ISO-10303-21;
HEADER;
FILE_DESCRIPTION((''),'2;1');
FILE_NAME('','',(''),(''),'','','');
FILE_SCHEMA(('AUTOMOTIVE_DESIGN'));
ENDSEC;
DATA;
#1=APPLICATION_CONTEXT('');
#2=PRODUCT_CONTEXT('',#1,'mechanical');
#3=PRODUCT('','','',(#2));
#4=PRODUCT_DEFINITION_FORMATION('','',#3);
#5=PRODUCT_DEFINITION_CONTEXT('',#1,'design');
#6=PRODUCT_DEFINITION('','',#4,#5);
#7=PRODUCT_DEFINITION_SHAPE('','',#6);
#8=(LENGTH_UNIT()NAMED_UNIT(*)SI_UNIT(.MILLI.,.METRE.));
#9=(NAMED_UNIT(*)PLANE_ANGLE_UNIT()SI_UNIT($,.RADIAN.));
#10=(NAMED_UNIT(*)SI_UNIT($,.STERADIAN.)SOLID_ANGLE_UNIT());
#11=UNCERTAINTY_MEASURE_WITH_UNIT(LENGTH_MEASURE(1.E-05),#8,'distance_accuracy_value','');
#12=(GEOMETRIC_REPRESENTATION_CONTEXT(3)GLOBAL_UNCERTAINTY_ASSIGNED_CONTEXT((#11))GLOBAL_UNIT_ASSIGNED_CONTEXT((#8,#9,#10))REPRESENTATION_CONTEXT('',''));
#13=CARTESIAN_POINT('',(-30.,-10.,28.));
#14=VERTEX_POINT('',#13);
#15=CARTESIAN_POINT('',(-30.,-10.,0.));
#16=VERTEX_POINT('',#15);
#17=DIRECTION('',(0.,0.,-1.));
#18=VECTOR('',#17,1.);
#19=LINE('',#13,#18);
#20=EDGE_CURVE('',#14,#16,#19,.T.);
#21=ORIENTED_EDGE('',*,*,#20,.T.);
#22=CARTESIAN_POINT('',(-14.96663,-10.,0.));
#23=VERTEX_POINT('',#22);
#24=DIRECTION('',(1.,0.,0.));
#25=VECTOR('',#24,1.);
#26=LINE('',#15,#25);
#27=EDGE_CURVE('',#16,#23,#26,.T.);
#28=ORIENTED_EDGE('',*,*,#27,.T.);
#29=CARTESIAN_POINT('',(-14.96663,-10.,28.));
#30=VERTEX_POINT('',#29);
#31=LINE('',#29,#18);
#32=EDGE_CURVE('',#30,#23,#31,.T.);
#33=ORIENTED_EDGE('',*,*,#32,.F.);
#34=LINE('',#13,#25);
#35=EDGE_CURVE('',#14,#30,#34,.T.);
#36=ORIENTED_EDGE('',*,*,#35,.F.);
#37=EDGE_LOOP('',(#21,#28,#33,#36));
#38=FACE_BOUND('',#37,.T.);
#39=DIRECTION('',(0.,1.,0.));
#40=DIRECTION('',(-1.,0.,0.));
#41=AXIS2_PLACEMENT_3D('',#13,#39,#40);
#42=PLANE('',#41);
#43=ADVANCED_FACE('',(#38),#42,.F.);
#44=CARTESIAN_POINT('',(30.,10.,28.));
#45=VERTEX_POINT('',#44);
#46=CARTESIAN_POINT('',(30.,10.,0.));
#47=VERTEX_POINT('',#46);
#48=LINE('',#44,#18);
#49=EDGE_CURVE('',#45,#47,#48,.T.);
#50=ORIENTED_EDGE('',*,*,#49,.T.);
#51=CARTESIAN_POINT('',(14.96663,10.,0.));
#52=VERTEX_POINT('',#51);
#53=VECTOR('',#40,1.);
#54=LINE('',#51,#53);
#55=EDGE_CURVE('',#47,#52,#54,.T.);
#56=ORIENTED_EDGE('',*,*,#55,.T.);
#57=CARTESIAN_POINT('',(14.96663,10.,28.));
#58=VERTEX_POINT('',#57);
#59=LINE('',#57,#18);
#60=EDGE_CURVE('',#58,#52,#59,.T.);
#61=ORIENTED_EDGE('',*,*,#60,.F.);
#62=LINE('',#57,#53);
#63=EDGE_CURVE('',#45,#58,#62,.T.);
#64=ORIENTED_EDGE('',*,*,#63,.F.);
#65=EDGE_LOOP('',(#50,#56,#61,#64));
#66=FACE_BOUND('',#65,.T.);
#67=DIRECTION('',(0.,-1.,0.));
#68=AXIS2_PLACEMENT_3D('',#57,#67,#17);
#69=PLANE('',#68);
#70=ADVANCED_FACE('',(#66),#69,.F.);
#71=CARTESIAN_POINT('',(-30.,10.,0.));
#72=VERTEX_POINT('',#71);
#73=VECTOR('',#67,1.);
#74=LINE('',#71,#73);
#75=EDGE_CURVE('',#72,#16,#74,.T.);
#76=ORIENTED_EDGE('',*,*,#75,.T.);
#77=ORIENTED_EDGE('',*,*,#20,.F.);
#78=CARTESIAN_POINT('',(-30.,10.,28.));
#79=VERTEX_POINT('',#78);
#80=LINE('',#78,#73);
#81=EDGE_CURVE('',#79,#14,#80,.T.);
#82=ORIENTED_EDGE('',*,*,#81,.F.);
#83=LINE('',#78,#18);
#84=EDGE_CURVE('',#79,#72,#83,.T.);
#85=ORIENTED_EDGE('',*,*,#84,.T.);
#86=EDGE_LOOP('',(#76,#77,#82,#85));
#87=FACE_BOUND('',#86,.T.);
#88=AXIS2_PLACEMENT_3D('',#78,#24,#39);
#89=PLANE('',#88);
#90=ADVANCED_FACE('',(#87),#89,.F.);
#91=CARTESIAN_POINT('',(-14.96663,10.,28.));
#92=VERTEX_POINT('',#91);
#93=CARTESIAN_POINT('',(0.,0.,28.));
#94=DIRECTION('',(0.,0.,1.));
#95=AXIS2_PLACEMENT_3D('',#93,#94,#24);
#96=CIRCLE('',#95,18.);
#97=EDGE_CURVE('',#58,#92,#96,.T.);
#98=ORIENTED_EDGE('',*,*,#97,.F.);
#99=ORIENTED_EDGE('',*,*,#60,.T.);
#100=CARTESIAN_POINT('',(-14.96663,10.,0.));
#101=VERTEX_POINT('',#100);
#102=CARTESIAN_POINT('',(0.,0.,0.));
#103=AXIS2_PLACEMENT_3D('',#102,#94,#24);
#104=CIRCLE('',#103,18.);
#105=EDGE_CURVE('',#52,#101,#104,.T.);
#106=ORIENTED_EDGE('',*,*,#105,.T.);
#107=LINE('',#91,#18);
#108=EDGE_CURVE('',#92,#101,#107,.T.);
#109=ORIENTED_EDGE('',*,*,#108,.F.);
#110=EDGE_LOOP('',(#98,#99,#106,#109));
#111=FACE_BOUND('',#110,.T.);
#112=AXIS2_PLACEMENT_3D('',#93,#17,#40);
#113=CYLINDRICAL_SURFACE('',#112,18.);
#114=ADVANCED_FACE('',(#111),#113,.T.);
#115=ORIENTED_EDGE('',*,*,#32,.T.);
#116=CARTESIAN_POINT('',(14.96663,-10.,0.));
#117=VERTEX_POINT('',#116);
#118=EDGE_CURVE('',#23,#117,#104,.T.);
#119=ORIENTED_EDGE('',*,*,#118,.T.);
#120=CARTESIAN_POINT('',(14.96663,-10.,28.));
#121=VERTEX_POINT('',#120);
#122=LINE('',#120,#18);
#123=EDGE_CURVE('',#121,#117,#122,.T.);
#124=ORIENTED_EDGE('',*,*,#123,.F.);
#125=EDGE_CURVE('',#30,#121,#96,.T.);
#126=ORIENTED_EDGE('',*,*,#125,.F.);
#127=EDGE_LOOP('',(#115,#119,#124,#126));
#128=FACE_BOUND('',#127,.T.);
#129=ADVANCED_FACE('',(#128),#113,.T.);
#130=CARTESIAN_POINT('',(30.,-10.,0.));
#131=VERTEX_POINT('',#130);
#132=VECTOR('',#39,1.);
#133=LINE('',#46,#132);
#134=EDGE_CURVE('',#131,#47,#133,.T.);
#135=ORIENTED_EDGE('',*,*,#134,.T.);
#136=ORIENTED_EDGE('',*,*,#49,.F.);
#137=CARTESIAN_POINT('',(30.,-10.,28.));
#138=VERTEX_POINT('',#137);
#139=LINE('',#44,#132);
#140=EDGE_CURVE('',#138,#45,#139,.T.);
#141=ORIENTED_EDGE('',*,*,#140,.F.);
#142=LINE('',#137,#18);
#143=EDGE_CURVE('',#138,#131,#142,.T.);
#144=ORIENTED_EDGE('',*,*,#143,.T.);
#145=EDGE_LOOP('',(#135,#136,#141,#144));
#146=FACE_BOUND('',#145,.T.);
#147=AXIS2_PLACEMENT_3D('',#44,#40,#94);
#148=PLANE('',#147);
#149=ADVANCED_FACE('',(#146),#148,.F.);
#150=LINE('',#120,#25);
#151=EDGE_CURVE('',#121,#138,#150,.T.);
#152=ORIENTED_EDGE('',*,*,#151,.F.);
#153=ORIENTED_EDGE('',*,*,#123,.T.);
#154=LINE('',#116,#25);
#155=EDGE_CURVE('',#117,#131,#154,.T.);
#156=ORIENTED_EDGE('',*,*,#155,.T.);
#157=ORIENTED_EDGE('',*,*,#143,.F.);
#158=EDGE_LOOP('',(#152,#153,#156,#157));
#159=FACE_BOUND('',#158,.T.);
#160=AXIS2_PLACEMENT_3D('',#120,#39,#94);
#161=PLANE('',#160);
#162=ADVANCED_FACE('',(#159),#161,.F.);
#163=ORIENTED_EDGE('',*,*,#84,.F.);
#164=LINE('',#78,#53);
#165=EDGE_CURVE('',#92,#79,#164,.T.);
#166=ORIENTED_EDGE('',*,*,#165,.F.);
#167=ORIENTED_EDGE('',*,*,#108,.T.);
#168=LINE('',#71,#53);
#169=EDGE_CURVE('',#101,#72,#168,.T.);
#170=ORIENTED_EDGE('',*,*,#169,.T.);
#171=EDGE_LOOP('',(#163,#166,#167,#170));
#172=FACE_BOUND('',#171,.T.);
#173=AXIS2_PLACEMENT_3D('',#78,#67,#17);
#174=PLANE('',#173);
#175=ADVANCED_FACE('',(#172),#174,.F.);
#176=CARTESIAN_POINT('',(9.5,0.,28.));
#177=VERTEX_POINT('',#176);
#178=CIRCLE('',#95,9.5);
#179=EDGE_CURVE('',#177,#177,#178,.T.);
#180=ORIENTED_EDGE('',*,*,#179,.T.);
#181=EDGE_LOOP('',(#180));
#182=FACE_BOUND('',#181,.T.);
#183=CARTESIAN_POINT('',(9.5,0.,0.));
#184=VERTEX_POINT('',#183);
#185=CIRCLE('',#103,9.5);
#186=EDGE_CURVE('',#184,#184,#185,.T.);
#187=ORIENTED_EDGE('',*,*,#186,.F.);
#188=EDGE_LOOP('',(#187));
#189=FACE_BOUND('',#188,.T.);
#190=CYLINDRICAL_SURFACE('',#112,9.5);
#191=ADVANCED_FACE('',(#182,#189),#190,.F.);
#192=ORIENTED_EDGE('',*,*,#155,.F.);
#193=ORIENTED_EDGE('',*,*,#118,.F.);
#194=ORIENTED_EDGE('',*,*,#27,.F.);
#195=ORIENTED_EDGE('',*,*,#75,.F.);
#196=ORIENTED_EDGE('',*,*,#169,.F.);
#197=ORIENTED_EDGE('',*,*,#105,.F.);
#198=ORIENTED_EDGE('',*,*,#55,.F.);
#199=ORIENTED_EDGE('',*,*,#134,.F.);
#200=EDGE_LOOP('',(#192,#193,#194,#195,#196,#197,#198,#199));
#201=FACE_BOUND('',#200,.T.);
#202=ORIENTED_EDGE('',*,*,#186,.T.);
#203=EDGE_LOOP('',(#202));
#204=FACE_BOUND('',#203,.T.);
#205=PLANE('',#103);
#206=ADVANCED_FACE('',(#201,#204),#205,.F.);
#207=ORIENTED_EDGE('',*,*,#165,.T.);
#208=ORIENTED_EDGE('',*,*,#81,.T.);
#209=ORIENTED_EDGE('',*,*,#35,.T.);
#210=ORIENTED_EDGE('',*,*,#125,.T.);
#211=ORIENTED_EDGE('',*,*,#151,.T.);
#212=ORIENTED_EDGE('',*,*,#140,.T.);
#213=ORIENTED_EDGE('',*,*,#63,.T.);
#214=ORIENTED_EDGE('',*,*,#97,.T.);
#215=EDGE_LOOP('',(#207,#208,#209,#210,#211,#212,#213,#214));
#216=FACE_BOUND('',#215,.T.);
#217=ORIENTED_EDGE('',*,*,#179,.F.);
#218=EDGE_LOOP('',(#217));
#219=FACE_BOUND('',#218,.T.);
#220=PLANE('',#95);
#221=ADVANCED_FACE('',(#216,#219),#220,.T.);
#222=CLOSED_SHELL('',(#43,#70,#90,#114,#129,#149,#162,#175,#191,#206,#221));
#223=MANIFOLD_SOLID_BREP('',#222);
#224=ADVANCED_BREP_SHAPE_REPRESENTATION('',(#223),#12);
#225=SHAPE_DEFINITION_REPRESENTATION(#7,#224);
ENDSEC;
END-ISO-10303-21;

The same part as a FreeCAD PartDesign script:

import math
import FreeCAD as App
import Part
import Sketcher

V = App.Vector
Q = App.Units.Quantity

doc = App.newDocument("Part")
body = doc.addObject("PartDesign::Body", "Body")

# Sketch on XY plane
sketch1 = body.newObject("Sketcher::SketchObject", "Sketch")
sketch1.AttachmentSupport = (doc.getObject("XY_Plane"), [""])
sketch1.MapMode = "FlatFace"
sketch1.addGeometry([
    Part.LineSegment(V(30, 10, 0), V(15, 10, 0)),  # 0
    Part.ArcOfCircle(Part.Circle(V(0, 0, 0), V(0, 0, 1), 18), math.radians(34), math.radians(146)),  # 1
    Part.LineSegment(V(-15, 10, 0), V(-30, 10, 0)),  # 2
    Part.LineSegment(V(-30, 10, 0), V(-30, -10, 0)),  # 3
    Part.LineSegment(V(-30, -10, 0), V(-15, -10, 0)),  # 4
    Part.ArcOfCircle(Part.Circle(V(0, 0, 0), V(0, 0, 1), 18), math.radians(-146), math.radians(-34)),  # 5
    Part.LineSegment(V(15, -10, 0), V(30, -10, 0)),  # 6
    Part.LineSegment(V(30, -10, 0), V(30, 10, 0)),  # 7
    Part.Circle(V(0, 0, 0), V(0, 0, 1), 10),  # 8
], False)
sketch1.addConstraint([
    Sketcher.Constraint("Coincident", 0, 2, 1, 1),
    Sketcher.Constraint("Coincident", 1, 2, 2, 1),
    Sketcher.Constraint("Coincident", 2, 2, 3, 1),
    Sketcher.Constraint("Coincident", 3, 2, 4, 1),
    Sketcher.Constraint("Coincident", 4, 2, 5, 1),
    Sketcher.Constraint("Coincident", 5, 2, 6, 1),
    Sketcher.Constraint("Coincident", 6, 2, 7, 1),
    Sketcher.Constraint("Coincident", 7, 2, 0, 1),
    Sketcher.Constraint("Horizontal", 0),
    Sketcher.Constraint("Horizontal", 2),
    Sketcher.Constraint("Vertical", 3),
    Sketcher.Constraint("Horizontal", 4),
    Sketcher.Constraint("Horizontal", 6),
    Sketcher.Constraint("Vertical", 7),
    Sketcher.Constraint("Coincident", 1, 3, -1, 1),
    Sketcher.Constraint("Coincident", 5, 3, -1, 1),
    Sketcher.Constraint("Coincident", 8, 3, -1, 1),
    Sketcher.Constraint("Equal", 1, 5),
    Sketcher.Constraint("Symmetric", 2, 2, 6, 2, -1, 1),
    Sketcher.Constraint("Horizontal", 0, 2, 1, 2),
    Sketcher.Constraint("Horizontal", 4, 2, 5, 2),
    Sketcher.Constraint("Diameter", 8, Q("19 mm")),
    Sketcher.Constraint("Radius", 1, Q("18 mm")),
    Sketcher.Constraint("DistanceY", 3, 2, 3, 1, Q("20 mm")),
    Sketcher.Constraint("DistanceX", 2, 2, -1, 1, Q("30 mm")),
])
pad1 = body.newObject("PartDesign::Pad", "Pad")
pad1.Profile = sketch1
pad1.Length = 28

doc.recompute()
